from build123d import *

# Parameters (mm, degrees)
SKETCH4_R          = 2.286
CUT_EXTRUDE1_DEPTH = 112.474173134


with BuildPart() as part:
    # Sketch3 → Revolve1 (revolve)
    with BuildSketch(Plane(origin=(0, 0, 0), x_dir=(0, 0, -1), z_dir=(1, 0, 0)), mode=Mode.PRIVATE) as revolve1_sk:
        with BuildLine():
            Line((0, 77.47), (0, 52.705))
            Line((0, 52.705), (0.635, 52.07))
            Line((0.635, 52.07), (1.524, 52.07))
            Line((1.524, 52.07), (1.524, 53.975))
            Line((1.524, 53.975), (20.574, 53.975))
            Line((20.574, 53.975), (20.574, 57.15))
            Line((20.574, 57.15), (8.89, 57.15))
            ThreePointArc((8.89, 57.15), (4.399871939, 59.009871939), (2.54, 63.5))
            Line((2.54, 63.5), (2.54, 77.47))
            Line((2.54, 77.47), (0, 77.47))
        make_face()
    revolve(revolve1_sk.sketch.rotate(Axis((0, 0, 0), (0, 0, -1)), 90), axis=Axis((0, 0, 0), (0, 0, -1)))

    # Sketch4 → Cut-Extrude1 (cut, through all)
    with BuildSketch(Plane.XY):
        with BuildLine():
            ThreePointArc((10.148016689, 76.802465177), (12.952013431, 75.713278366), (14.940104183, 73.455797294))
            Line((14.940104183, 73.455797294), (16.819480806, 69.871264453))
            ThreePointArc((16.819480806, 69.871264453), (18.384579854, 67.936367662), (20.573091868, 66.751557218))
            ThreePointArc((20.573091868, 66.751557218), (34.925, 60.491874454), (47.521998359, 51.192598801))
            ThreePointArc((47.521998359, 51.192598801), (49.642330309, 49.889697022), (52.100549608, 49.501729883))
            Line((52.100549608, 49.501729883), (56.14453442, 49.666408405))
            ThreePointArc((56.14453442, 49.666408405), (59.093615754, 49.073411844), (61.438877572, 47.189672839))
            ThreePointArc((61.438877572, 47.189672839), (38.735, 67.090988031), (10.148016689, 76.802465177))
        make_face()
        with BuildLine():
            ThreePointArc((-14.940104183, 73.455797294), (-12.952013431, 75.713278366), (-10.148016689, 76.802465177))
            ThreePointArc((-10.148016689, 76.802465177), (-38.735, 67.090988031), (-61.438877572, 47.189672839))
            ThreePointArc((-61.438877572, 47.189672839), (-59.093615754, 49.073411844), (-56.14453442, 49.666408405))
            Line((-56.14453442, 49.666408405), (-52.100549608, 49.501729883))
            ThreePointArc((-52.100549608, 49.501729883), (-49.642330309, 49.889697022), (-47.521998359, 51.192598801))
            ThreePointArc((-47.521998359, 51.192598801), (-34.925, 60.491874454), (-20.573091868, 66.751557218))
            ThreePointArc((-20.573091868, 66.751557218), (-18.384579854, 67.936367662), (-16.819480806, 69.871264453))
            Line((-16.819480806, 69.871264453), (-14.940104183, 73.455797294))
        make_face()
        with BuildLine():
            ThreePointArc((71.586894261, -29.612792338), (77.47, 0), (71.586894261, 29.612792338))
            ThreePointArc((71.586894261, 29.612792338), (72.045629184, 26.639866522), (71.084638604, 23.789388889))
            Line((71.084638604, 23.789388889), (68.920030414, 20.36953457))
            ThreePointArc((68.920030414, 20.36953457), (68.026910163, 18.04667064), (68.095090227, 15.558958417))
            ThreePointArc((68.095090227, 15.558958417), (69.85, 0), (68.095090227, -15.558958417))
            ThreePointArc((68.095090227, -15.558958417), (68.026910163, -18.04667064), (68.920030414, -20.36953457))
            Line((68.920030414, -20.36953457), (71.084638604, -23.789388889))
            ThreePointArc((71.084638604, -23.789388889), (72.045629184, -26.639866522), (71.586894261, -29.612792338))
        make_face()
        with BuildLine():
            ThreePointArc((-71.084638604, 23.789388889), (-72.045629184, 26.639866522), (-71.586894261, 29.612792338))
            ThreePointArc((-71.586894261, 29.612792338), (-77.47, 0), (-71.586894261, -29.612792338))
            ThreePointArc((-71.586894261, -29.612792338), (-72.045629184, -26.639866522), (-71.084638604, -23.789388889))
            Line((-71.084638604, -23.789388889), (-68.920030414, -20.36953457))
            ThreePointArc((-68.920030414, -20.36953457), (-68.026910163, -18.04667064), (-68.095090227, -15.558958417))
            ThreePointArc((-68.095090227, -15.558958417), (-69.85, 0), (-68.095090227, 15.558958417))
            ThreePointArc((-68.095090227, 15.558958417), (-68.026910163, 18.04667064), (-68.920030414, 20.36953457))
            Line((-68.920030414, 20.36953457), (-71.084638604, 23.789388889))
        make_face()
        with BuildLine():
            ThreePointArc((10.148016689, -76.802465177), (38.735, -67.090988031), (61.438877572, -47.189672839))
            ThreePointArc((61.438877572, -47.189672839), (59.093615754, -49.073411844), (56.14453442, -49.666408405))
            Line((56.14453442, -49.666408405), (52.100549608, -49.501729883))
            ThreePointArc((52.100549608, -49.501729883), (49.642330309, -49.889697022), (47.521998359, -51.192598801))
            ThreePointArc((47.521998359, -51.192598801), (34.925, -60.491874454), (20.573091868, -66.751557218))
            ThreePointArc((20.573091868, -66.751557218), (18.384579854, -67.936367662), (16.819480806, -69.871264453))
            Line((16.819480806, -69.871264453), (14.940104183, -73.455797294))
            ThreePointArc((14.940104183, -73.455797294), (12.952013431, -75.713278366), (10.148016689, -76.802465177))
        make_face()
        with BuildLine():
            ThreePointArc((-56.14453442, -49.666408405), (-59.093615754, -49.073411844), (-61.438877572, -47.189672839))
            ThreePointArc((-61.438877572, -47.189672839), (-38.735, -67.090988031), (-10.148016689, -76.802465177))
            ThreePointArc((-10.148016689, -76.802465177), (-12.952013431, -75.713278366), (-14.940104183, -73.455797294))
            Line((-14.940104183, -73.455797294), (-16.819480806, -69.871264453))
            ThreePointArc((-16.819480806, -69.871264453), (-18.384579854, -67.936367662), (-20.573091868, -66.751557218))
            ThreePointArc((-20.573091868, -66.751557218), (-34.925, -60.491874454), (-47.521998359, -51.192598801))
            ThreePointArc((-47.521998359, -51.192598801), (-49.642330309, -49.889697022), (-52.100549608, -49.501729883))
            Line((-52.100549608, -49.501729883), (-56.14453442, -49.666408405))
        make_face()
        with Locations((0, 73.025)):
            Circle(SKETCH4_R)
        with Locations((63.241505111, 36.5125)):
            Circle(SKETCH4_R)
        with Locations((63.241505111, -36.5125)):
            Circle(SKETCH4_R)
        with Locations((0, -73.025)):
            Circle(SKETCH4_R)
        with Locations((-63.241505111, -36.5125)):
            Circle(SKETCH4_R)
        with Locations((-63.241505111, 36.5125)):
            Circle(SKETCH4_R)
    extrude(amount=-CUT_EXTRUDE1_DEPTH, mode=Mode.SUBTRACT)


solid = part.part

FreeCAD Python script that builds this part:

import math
import FreeCAD as App
import Part
import Sketcher
from FreeCAD import Vector
Q = App.Units.Quantity

doc = App.newDocument("Part")
body = doc.addObject("PartDesign::Body", "Body")

sketch1 = body.newObject("Sketcher::SketchObject", "Sketch")
sketch1.AttachmentSupport = (doc.getObject("YZ_Plane"), [""])
sketch1.MapMode = "FlatFace"
sketch1.addGeometry([
    Part.LineSegment(Vector(77.47, 0, 0), Vector(52.705, 0, 0)),
    Part.LineSegment(Vector(52.705, 0, 0), Vector(52.07, -0.635, 0)),
    Part.LineSegment(Vector(52.07, -0.635, 0), Vector(52.07, -1.524, 0)),
    Part.LineSegment(Vector(52.07, -1.524, 0), Vector(53.975, -1.524, 0)),
    Part.LineSegment(Vector(53.975, -1.524, 0), Vector(53.975, -20.574, 0)),
    Part.LineSegment(Vector(53.975, -20.574, 0), Vector(57.15, -20.574, 0)),
    Part.LineSegment(Vector(57.15, -20.574, 0), Vector(57.15, -8.89, 0)),
    Part.ArcOfCircle(Part.Circle(Vector(63.5, -8.89, 0), Vector(0, 0, 1), 6.35), math.radians(90), math.radians(180)),
    Part.LineSegment(Vector(63.5, -2.54, 0), Vector(77.47, -2.54, 0)),
    Part.LineSegment(Vector(77.47, -2.54, 0), Vector(77.47, 0, 0)),
], False)
sketch1.addConstraint([
    Sketcher.Constraint("Coincident", 0, 2, 1, 1),
    Sketcher.Constraint("Coincident", 1, 2, 2, 1),
    Sketcher.Constraint("Coincident", 2, 2, 3, 1),
    Sketcher.Constraint("Coincident", 3, 2, 4, 1),
    Sketcher.Constraint("Coincident", 4, 2, 5, 1),
    Sketcher.Constraint("Coincident", 5, 2, 6, 1),
    Sketcher.Constraint("Tangent", 6, 2, 7, 2),
    Sketcher.Constraint("Tangent", 7, 1, 8, 1),
    Sketcher.Constraint("Coincident", 8, 2, 9, 1),
    Sketcher.Constraint("Coincident", 9, 2, 0, 1),
    Sketcher.Constraint("Horizontal", 0),
    Sketcher.Constraint("Vertical", 2),
    Sketcher.Constraint("Horizontal", 3),
    Sketcher.Constraint("Vertical", 4),
    Sketcher.Constraint("Horizontal", 5),
    Sketcher.Constraint("Vertical", 6),
    Sketcher.Constraint("Horizontal", 8),
    Sketcher.Constraint("Vertical", 9),
    Sketcher.Constraint("PointOnObject", 0, 2, -1),
    Sketcher.Constraint("Radius", 7, Q("0.25 in")),
    Sketcher.Constraint("DistanceY", 9, 1, 9, 2, Q("0.1 in")),
    Sketcher.Constraint("Angle", 1, Q("-135 deg")),
    Sketcher.Constraint("DistanceX", 8, 1, 8, 2, Q("0.55 in")),
    Sketcher.Constraint("DistanceY", 4, 2, 4, 1, Q("0.75 in")),
    Sketcher.Constraint("DistanceY", 6, 1, 6, 2, Q("0.46 in")),
    Sketcher.Constraint("DistanceX", -1, 1, 7, 3, Q("2.5 in")),
    Sketcher.Constraint("DistanceX", 2, 2, 5, 2, Q("0.2 in")),
    Sketcher.Constraint("DistanceX", 0, 2, 0, 1, Q("0.975 in")),
    Sketcher.Constraint("DistanceX", 3, 1, 3, 2, Q("0.075 in")),
])
revolution = body.newObject("PartDesign::Revolution", "Revolution")
revolution.Profile = sketch1
revolution.ReferenceAxis = (sketch1, ["V_Axis"])
revolution.Angle = 360

sketch2 = body.newObject("Sketcher::SketchObject", "Sketch001")
sketch2.AttachmentSupport = (doc.getObject("XY_Plane"), [""])
sketch2.MapMode = "FlatFace"
sketch2.addGeometry([
    Part.ArcOfCircle(Part.Circle(Vector(9.316212, 70.507181, 0), Vector(0, 0, 1), 6.35), math.radians(27.668099), math.radians(82.47303)),
    Part.LineSegment(Vector(14.940104, 73.455797, 0), Vector(16.819481, 69.871264, 0)),
    Part.ArcOfCircle(Part.Circle(Vector(22.443373, 72.819881, 0), Vector(0, 0, 1), 6.35), math.radians(-152.331901), math.radians(-107.129503)),
    Part.ArcOfCircle(Part.Circle(Vector(0, 0, 0), Vector(0, 0, 1), 69.85), math.radians(47.129503), math.radians(72.870497)),
    Part.ArcOfCircle(Part.Circle(Vector(51.84218, 55.846471, 0), Vector(0, 0, 1), 6.35), math.radians(-132.870497), math.radians(-87.668099)),
    Part.LineSegment(Vector(52.10055, 49.50173, 0), Vector(56.144534, 49.666408, 0)),
    Part.ArcOfCircle(Part.Circle(Vector(56.402904, 43.321667, 0), Vector(0, 0, 1), 6.35), math.radians(37.52697), math.radians(92.331901)),
    Part.ArcOfCircle(Part.Circle(Vector(0, 0, 0), Vector(0, 0, 1), 77.47), math.radians(37.52697), math.radians(82.47303)),
    Part.ArcOfCircle(Part.Circle(Vector(-9.316212, 70.507181, 0), Vector(0, 0, 1), 6.35), math.radians(97.52697), math.radians(152.331901)),
    Part.ArcOfCircle(Part.Circle(Vector(0, 0, 0), Vector(0, 0, 1), 77.47), math.radians(97.52697), math.radians(142.47303)),
    Part.ArcOfCircle(Part.Circle(Vector(-56.402904, 43.321667, 0), Vector(0, 0, 1), 6.35), math.radians(87.668099), math.radians(142.47303)),
    Part.LineSegment(Vector(-56.144534, 49.666408, 0), Vector(-52.10055, 49.50173, 0)),
    Part.ArcOfCircle(Part.Circle(Vector(-51.84218, 55.846471, 0), Vector(0, 0, 1), 6.35), math.radians(-92.331901), math.radians(-47.129503)),
    Part.ArcOfCircle(Part.Circle(Vector(0, 0, 0), Vector(0, 0, 1), 69.85), math.radians(107.129503), math.radians(132.870497)),
    Part.ArcOfCircle(Part.Circle(Vector(-22.443373, 72.819881, 0), Vector(0, 0, 1), 6.35), math.radians(-72.870497), math.radians(-27.668099)),
    Part.LineSegment(Vector(-16.819481, 69.871264, 0), Vector(-14.940104, 73.455797, 0)),
    Part.ArcOfCircle(Part.Circle(Vector(0, 0, 0), Vector(0, 0, 1), 77.47), math.radians(-22.47303), math.radians(22.47303)),
    Part.ArcOfCircle(Part.Circle(Vector(65.719116, 27.185514, 0), Vector(0, 0, 1), 6.35), math.radians(-32.331901), math.radians(22.47303)),
    Part.LineSegment(Vector(71.084639, 23.789389, 0), Vector(68.92003, 20.369535, 0)),
    Part.ArcOfCircle(Part.Circle(Vector(74.285553, 16.973409, 0), Vector(0, 0, 1), 6.35), math.radians(147.668099), math.radians(192.870497)),
    Part.ArcOfCircle(Part.Circle(Vector(0, 0, 0), Vector(0, 0, 1), 69.85), math.radians(-12.870497), math.radians(12.870497)),
    Part.ArcOfCircle(Part.Circle(Vector(74.285553, -16.973409, 0), Vector(0, 0, 1), 6.35), math.radians(167.129503), math.radians(212.331901)),
    Part.LineSegment(Vector(68.92003, -20.369535, 0), Vector(71.084639, -23.789389, 0)),
    Part.ArcOfCircle(Part.Circle(Vector(65.719116, -27.185514, 0), Vector(0, 0, 1), 6.35), math.radians(-22.47303), math.radians(32.331901)),
    Part.ArcOfCircle(Part.Circle(Vector(-65.719116, 27.185514, 0), Vector(0, 0, 1), 6.35), math.radians(157.52697), math.radians(212.331901)),
    Part.ArcOfCircle(Part.Circle(Vector(0, 0, 0), Vector(0, 0, 1), 77.47), math.radians(157.52697), math.radians(202.47303)),
    Part.ArcOfCircle(Part.Circle(Vector(-65.719116, -27.185514, 0), Vector(0, 0, 1), 6.35), math.radians(147.668099), math.radians(202.47303)),
    Part.LineSegment(Vector(-71.084639, -23.789389, 0), Vector(-68.92003, -20.369535, 0)),
    Part.ArcOfCircle(Part.Circle(Vector(-74.285553, -16.973409, 0), Vector(0, 0, 1), 6.35), math.radians(-32.331901), math.radians(12.870497)),
    Part.ArcOfCircle(Part.Circle(Vector(0, 0, 0), Vector(0, 0, 1), 69.85), math.radians(167.129503), math.radians(192.870497)),
    Part.ArcOfCircle(Part.Circle(Vector(-74.285553, 16.973409, 0), Vector(0, 0, 1), 6.35), math.radians(-12.870497), math.radians(32.331901)),
    Part.LineSegment(Vector(-68.92003, 20.369535, 0), Vector(-71.084639, 23.789389, 0)),
    Part.ArcOfCircle(Part.Circle(Vector(0, 0, 0), Vector(0, 0, 1), 77.47), math.radians(-82.47303), math.radians(-37.52697)),
    Part.ArcOfCircle(Part.Circle(Vector(56.402904, -43.321667, 0), Vector(0, 0, 1), 6.35), math.radians(-92.331901), math.radians(-37.52697)),
    Part.LineSegment(Vector(56.144534, -49.666408, 0), Vector(52.10055, -49.50173, 0)),
    Part.ArcOfCircle(Part.Circle(Vector(51.84218, -55.846471, 0), Vector(0, 0, 1), 6.35), math.radians(87.668099), math.radians(132.870497)),
    Part.ArcOfCircle(Part.Circle(Vector(0, 0, 0), Vector(0, 0, 1), 69.85), math.radians(-72.870497), math.radians(-47.129503)),
    Part.ArcOfCircle(Part.Circle(Vector(22.443373, -72.819881, 0), Vector(0, 0, 1), 6.35), math.radians(107.129503), math.radians(152.331901)),
    Part.LineSegment(Vector(16.819481, -69.871264, 0), Vector(14.940104, -73.455797, 0)),
    Part.ArcOfCircle(Part.Circle(Vector(9.316212, -70.507181, 0), Vector(0, 0, 1), 6.35), math.radians(-82.47303), math.radians(-27.668099)),
    Part.ArcOfCircle(Part.Circle(Vector(-56.402904, -43.321667, 0), Vector(0, 0, 1), 6.35), math.radians(-142.47303), math.radians(-87.668099)),
    Part.ArcOfCircle(Part.Circle(Vector(0, 0, 0), Vector(0, 0, 1), 77.47), math.radians(-142.47303), math.radians(-97.52697)),
    Part.ArcOfCircle(Part.Circle(Vector(-9.316212, -70.507181, 0), Vector(0, 0, 1), 6.35), math.radians(-152.331901), math.radians(-97.52697)),
    Part.LineSegment(Vector(-14.940104, -73.455797, 0), Vector(-16.819481, -69.871264, 0)),
    Part.ArcOfCircle(Part.Circle(Vector(-22.443373, -72.819881, 0), Vector(0, 0, 1), 6.35), math.radians(27.668099), math.radians(72.870497)),
    Part.ArcOfCircle(Part.Circle(Vector(0, 0, 0), Vector(0, 0, 1), 69.85), math.radians(-132.870497), math.radians(-107.129503)),
    Part.ArcOfCircle(Part.Circle(Vector(-51.84218, -55.846471, 0), Vector(0, 0, 1), 6.35), math.radians(47.129503), math.radians(92.331901)),
    Part.LineSegment(Vector(-52.10055, -49.50173, 0), Vector(-56.144534, -49.666408, 0)),
    Part.Circle(Vector(0, 73.025, 0), Vector(0, 0, 1), 2.286),
    Part.Circle(Vector(63.241505, 36.5125, 0), Vector(0, 0, 1), 2.286),
    Part.Circle(Vector(63.241505, -36.5125, 0), Vector(0, 0, 1), 2.286),
    Part.Circle(Vector(0, -73.025, 0), Vector(0, 0, 1), 2.286),
    Part.Circle(Vector(-63.241505, -36.5125, 0), Vector(0, 0, 1), 2.286),
    Part.Circle(Vector(-63.241505, 36.5125, 0), Vector(0, 0, 1), 2.286),
], False)
sketch2.addConstraint([
    Sketcher.Constraint("Tangent", 0, 1, 1, 1),
    Sketcher.Constraint("Tangent", 1, 2, 2, 1),
    Sketcher.Constraint("Tangent", 2, 2, 3, 2),
    Sketcher.Constraint("Tangent", 3, 1, 4, 1),
    Sketcher.Constraint("Tangent", 4, 2, 5, 1),
    Sketcher.Constraint("Tangent", 5, 2, 6, 2),
    Sketcher.Constraint("Tangent", 6, 1, 7, 1),
    Sketcher.Constraint("Tangent", 7, 2, 0, 2),
    Sketcher.Constraint("Tangent", 8, 1, 9, 1),
    Sketcher.Constraint("Tangent", 9, 2, 10, 2),
    Sketcher.Constraint("Tangent", 10, 1, 11, 1),
    Sketcher.Constraint("Tangent", 11, 2, 12, 1),
    Sketcher.Constraint("Tangent", 12, 2, 13, 2),
    Sketcher.Constraint("Tangent", 13, 1, 14, 1),
    Sketcher.Constraint("Tangent", 14, 2, 15, 1),
    Sketcher.Constraint("Tangent", 15, 2, 8, 2),
    Sketcher.Constraint("Tangent", 16, 2, 17, 2),
    Sketcher.Constraint("Tangent", 17, 1, 18, 1),
    Sketcher.Constraint("Tangent", 18, 2, 19, 1),
    Sketcher.Constraint("Tangent", 19, 2, 20, 2),
    Sketcher.Constraint("Tangent", 20, 1, 21, 1),
    Sketcher.Constraint("Tangent", 21, 2, 22, 1),
    Sketcher.Constraint("Tangent", 22, 2, 23, 2),
    Sketcher.Constraint("Tangent", 23, 1, 16, 1),
    Sketcher.Constraint("Tangent", 24, 1, 25, 1),
    Sketcher.Constraint("Tangent", 25, 2, 26, 2),
    Sketcher.Constraint("Tangent", 26, 1, 27, 1),
    Sketcher.Constraint("Tangent", 27, 2, 28, 1),
    Sketcher.Constraint("Tangent", 28, 2, 29, 2),
    Sketcher.Constraint("Tangent", 29, 1, 30, 1),
    Sketcher.Constraint("Tangent", 30, 2, 31, 1),
    Sketcher.Constraint("Tangent", 31, 2, 24, 2),
    Sketcher.Constraint("Tangent", 32, 2, 33, 2),
    Sketcher.Constraint("Tangent", 33, 1, 34, 1),
    Sketcher.Constraint("Tangent", 34, 2, 35, 1),
    Sketcher.Constraint("Tangent", 35, 2, 36, 2),
    Sketcher.Constraint("Tangent", 36, 1, 37, 1),
    Sketcher.Constraint("Tangent", 37, 2, 38, 1),
    Sketcher.Constraint("Tangent", 38, 2, 39, 2),
    Sketcher.Constraint("Tangent", 39, 1, 32, 1),
    Sketcher.Constraint("Tangent", 40, 1, 41, 1),
    Sketcher.Constraint("Tangent", 41, 2, 42, 2),
    Sketcher.Constraint("Tangent", 42, 1, 43, 1),
    Sketcher.Constraint("Tangent", 43, 2, 44, 1),
    Sketcher.Constraint("Tangent", 44, 2, 45, 2),
    Sketcher.Constraint("Tangent", 45, 1, 46, 1),
    Sketcher.Constraint("Tangent", 46, 2, 47, 1),
    Sketcher.Constraint("Tangent", 47, 2, 40, 2),
    Sketcher.Constraint("Coincident", 3, 3, -1, 1),
    Sketcher.Constraint("Coincident", 7, 3, -1, 1),
    Sketcher.Constraint("Coincident", 9, 3, -1, 1),
    Sketcher.Constraint("Coincident", 13, 3, -1, 1),
    Sketcher.Constraint("Coincident", 16, 3, -1, 1),
    Sketcher.Constraint("Coincident", 20, 3, -1, 1),
    Sketcher.Constraint("Coincident", 25, 3, -1, 1),
    Sketcher.Constraint("Coincident", 29, 3, -1, 1),
    Sketcher.Constraint("Coincident", 32, 3, -1, 1),
    Sketcher.Constraint("Coincident", 36, 3, -1, 1),
    Sketcher.Constraint("Coincident", 41, 3, -1, 1),
    Sketcher.Constraint("Coincident", 45, 3, -1, 1),
    Sketcher.Constraint("Equal", 0, 2),
    Sketcher.Constraint("Equal", 2, 4),
    Sketcher.Constraint("Equal", 4, 6),
    Sketcher.Constraint("Equal", 6, 8),
    Sketcher.Constraint("Equal", 7, 9),
    Sketcher.Constraint("Equal", 8, 10),
    Sketcher.Constraint("Equal", 10, 12),
    Sketcher.Constraint("Equal", 3, 13),
    Sketcher.Constraint("Equal", 12, 14),
    Sketcher.Constraint("Equal", 9, 16),
    Sketcher.Constraint("Equal", 14, 17),
    Sketcher.Constraint("Equal", 17, 19),
    Sketcher.Constraint("Equal", 13, 20),
    Sketcher.Constraint("Equal", 19, 21),
    Sketcher.Constraint("Equal", 21, 23),
    Sketcher.Constraint("Equal", 23, 24),
    Sketcher.Constraint("Equal", 16, 25),
    Sketcher.Constraint("Equal", 24, 26),
    Sketcher.Constraint("Equal", 26, 28),
    Sketcher.Constraint("Equal", 20, 29),
    Sketcher.Constraint("Equal", 28, 30),
    Sketcher.Constraint("Equal", 25, 32),
    Sketcher.Constraint("Equal", 30, 33),
    Sketcher.Constraint("Equal", 33, 35),
    Sketcher.Constraint("Equal", 29, 36),
    Sketcher.Constraint("Equal", 35, 37),
    Sketcher.Constraint("Equal", 37, 39),
    Sketcher.Constraint("Equal", 39, 40),
    Sketcher.Constraint("Equal", 32, 41),
    Sketcher.Constraint("Equal", 40, 42),
    Sketcher.Constraint("Equal", 42, 44),
    Sketcher.Constraint("Equal", 36, 45),
    Sketcher.Constraint("Equal", 44, 46),
    Sketcher.Constraint("Equal", 48, 49),
    Sketcher.Constraint("Equal", 49, 50),
    Sketcher.Constraint("Equal", 50, 51),
    Sketcher.Constraint("Equal", 51, 52),
    Sketcher.Constraint("Equal", 52, 53),
    Sketcher.Constraint("Symmetric", 48, 3, 51, 3, -1, 1),
    Sketcher.Constraint("Symmetric", 49, 3, 52, 3, -1, 1),
    Sketcher.Constraint("Symmetric", 50, 3, 53, 3, -1, 1),
    Sketcher.Constraint("Symmetric", 17, 1, 26, 1, -1, 1),
    Sketcher.Constraint("Symmetric", 21, 2, 30, 2, -1, 1),
    Sketcher.Constraint("Symmetric", 10, 1, 33, 1, -1, 1),
    Sketcher.Constraint("Symmetric", 14, 2, 37, 2, -1, 1),
    Sketcher.Constraint("Symmetric", 0, 1, 42, 1, -1, 1),
    Sketcher.Constraint("Symmetric", 4, 2, 46, 2, -1, 1),
    Sketcher.Constraint("Symmetric", 50, 3, 52, 3, -2),
    Sketcher.Constraint("Symmetric", 5, 2, 10, 1, -2),
    Sketcher.Constraint("Symmetric", 1, 2, 14, 2, -2),
    Sketcher.Constraint("Symmetric", 22, 2, 26, 1, -2),
    Sketcher.Constraint("PointOnObject", 48, 3, -2),
    Sketcher.Constraint("Equal", 1, 5),
    Sketcher.Constraint("Equal", 15, 18),
    Sketcher.Constraint("Diameter", 48, Q("0.18 in")),
    Sketcher.Constraint("Radius", 0, Q("0.25 in")),
    Sketcher.Constraint("Radius", 3, Q("2.75 in")),
    Sketcher.Constraint("Radius", 7, Q("3.05 in")),
    Sketcher.Constraint("DistanceY", -1, 1, 48, 3, Q("2.875 in")),
    Sketcher.Constraint("DistanceY", -1, 1, 49, 3, Q("1.4375 in")),
    Sketcher.Constraint("DistanceX", -1, 1, 3, 1, Q("47.521998 mm")),
    Sketcher.Constraint("DistanceY", -1, 1, 0, 3, Q("70.507181 mm")),
    Sketcher.Constraint("DistanceY", -1, 1, 2, 3, Q("72.819881 mm")),
    Sketcher.Constraint("DistanceY", -1, 1, 19, 3, Q("16.973409 mm")),
    Sketcher.Constraint("DistanceX", -1, 1, 49, 3, Q("63.241505 mm")),
])
pocket1 = body.newObject("PartDesign::Pocket", "Pocket")
pocket1.Profile = sketch2
pocket1.Type = "ThroughAll"

doc.recompute()
